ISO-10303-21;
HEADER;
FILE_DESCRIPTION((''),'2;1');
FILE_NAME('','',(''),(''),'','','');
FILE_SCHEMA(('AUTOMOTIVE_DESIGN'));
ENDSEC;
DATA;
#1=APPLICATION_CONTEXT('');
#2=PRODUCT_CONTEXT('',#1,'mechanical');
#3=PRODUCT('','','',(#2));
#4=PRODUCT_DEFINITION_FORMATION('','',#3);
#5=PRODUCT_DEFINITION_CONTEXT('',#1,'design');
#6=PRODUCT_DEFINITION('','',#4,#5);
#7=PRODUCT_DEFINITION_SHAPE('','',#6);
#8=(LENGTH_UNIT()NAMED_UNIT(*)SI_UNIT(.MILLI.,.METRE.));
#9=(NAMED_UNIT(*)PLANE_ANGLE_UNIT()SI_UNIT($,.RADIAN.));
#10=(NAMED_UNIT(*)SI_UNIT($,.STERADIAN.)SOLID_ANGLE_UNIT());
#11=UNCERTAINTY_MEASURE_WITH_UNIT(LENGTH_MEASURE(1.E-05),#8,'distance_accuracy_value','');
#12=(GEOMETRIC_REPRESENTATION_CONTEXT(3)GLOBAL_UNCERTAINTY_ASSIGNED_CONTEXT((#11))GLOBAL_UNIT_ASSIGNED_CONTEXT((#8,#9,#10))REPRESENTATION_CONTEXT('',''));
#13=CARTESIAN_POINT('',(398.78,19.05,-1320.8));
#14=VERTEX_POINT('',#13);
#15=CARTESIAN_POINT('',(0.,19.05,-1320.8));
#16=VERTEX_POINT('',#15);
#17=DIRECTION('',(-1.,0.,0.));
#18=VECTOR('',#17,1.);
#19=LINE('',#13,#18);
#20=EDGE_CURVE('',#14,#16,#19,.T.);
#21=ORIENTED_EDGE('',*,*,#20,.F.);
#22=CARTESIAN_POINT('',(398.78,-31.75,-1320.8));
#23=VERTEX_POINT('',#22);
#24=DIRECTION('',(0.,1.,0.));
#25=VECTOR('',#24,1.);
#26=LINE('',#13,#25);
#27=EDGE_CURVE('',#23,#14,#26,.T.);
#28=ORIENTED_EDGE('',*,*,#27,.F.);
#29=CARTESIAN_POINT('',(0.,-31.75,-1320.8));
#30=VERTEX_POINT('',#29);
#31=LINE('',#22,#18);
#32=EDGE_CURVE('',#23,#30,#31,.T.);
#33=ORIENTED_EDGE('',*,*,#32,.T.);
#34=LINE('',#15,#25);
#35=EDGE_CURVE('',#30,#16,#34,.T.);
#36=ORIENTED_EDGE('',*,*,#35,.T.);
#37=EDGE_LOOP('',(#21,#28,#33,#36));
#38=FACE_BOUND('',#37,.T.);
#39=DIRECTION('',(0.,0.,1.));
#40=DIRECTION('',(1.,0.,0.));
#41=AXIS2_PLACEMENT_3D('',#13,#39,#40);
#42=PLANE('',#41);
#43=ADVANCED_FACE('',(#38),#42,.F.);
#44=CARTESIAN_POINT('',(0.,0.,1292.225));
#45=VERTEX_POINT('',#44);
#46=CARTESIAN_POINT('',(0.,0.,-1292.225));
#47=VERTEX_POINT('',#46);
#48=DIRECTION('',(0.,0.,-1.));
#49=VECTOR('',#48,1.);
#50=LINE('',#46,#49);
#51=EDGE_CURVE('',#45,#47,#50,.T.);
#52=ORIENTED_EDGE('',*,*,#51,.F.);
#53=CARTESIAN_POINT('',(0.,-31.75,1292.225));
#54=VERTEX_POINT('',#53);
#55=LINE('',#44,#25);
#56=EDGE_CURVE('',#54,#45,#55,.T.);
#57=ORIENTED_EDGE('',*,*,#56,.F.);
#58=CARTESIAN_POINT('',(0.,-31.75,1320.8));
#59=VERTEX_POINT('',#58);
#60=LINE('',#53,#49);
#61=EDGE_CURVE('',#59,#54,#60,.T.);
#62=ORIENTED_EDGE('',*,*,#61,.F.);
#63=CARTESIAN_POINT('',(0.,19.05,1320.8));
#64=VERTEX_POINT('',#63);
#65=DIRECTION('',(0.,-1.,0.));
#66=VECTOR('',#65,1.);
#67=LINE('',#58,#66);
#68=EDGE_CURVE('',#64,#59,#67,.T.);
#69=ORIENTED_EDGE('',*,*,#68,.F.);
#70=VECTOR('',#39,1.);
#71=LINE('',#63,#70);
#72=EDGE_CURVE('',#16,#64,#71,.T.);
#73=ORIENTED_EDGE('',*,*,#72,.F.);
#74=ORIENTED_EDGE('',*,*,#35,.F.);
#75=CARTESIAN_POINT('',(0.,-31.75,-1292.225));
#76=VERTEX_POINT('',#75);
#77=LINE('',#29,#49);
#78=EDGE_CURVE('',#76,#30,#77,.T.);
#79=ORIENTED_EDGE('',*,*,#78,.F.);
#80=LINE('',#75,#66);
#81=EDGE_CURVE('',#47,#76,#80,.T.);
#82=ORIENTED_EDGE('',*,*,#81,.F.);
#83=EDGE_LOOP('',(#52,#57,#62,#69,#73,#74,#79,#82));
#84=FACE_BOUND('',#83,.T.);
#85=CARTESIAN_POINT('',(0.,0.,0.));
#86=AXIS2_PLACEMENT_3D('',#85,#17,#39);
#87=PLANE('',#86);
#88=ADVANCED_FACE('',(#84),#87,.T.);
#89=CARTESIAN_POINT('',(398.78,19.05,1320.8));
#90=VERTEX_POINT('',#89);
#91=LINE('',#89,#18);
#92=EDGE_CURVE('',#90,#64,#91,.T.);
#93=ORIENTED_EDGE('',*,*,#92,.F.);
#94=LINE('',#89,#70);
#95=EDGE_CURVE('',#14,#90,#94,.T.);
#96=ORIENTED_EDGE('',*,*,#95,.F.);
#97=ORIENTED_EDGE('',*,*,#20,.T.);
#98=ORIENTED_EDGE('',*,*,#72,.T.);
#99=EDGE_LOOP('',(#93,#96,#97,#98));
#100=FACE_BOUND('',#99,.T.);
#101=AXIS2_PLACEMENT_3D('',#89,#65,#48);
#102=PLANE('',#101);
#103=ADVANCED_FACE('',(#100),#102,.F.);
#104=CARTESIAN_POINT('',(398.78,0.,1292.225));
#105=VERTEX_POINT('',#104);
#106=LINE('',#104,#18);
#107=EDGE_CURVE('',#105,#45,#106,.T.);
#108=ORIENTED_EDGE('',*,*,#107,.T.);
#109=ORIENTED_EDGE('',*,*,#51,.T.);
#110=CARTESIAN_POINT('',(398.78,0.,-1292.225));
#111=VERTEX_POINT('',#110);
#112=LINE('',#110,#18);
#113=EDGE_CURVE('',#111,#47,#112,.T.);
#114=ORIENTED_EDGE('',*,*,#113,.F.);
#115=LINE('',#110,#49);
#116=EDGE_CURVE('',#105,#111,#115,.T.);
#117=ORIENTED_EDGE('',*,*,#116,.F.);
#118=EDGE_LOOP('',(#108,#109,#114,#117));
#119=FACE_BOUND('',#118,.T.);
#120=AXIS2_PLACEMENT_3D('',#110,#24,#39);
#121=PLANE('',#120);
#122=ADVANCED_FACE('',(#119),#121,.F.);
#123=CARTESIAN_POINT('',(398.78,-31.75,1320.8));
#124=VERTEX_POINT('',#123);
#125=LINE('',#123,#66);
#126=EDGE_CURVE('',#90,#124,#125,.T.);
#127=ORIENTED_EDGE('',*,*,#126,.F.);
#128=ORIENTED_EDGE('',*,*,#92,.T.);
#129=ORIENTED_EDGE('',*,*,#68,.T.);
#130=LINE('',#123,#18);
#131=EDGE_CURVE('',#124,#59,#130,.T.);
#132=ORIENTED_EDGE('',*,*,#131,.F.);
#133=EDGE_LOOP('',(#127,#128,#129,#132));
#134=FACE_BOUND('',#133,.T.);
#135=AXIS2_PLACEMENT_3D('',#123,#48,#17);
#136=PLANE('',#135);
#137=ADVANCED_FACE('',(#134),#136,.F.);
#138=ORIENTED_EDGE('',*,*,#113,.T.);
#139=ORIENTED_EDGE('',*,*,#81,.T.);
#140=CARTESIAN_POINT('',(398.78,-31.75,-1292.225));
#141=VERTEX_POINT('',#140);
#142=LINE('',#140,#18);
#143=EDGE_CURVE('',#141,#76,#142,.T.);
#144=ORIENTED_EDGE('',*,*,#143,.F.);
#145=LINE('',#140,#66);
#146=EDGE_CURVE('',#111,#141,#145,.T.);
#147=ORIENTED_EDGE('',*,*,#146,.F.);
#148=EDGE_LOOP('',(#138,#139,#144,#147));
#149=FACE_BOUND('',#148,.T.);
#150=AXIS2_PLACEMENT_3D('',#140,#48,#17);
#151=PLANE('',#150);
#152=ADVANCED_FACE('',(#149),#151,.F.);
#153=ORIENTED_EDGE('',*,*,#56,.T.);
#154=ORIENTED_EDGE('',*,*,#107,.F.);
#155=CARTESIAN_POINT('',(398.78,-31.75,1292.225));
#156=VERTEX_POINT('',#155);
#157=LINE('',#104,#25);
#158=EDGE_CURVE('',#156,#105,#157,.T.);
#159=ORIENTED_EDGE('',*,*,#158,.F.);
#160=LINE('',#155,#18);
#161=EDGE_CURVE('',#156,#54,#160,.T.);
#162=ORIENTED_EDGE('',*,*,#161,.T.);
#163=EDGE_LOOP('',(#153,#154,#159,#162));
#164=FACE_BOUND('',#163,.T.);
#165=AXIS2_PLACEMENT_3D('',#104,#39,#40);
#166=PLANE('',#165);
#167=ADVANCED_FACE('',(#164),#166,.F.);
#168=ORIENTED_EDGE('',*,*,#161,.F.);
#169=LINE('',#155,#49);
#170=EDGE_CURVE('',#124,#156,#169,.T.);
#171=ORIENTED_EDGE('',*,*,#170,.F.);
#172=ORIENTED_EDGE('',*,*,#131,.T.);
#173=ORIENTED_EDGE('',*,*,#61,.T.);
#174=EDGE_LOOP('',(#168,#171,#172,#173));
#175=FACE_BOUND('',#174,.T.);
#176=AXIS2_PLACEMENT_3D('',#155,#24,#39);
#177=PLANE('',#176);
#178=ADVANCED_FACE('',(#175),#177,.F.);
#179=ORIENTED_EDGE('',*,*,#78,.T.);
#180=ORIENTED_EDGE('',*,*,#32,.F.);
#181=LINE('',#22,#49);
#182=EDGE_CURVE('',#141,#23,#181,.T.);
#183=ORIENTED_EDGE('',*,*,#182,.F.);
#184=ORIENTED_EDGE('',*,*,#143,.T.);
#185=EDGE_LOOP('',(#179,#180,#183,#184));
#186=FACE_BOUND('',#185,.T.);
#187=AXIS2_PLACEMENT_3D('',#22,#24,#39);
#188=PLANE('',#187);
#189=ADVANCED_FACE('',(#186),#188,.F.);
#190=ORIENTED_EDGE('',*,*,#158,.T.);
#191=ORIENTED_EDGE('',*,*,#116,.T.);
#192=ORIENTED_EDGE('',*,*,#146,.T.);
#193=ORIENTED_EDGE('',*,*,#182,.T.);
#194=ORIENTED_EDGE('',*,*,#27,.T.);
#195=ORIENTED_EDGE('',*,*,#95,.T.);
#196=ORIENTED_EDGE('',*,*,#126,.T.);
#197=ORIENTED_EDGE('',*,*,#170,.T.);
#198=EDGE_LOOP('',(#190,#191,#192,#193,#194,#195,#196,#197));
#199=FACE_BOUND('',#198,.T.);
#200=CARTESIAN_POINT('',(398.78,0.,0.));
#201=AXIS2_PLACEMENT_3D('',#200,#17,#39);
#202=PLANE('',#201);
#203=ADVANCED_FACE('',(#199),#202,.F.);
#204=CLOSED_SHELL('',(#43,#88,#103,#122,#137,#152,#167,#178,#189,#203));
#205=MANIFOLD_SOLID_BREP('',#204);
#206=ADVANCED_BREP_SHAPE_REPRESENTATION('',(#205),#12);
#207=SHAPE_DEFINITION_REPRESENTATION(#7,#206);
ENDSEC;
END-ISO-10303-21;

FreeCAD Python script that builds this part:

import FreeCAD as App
import Part
import Sketcher
from FreeCAD import Vector
Q = App.Units.Quantity

doc = App.newDocument("Part")
params = doc.addObject("Spreadsheet::Sheet", "Params")
for row, (alias, value) in enumerate([
    ("sketch1_width", "2 in"),
    ("sketch1_height", "104 in"),
    ("sketch1_width2", "1.25 in"),
    ("sketch1_height2", "101.75 in"),
    ("pad1_length", "15.7 in"),
], start=1):
    params.set(f"A{row}", alias)
    params.set(f"B{row}", "=" + value)
    params.setAlias(f"B{row}", alias)

body = doc.addObject("PartDesign::Body", "Body")

sketch1 = body.newObject("Sketcher::SketchObject", "Sketch")
sketch1.AttachmentSupport = (doc.getObject("YZ_Plane"), [""])
sketch1.MapMode = "FlatFace"
sketch1.addGeometry(Part.LineSegment(Vector(-31.75, 1320.8, 0), Vector(-31.75, 1292.225, 0)), False)
sketch1.addGeometry(Part.LineSegment(Vector(-31.75, 1292.225, 0), Vector(0, 1292.225, 0)), False)
sketch1.addGeometry(Part.LineSegment(Vector(0, 1292.225, 0), Vector(0, -1292.225, 0)), False)
sketch1.addGeometry(Part.LineSegment(Vector(0, -1292.225, 0), Vector(-31.75, -1292.225, 0)), False)
sketch1.addGeometry(Part.LineSegment(Vector(-31.75, -1292.225, 0), Vector(-31.75, -1320.8, 0)), False)
sketch1.addGeometry(Part.LineSegment(Vector(-31.75, -1320.8, 0), Vector(19.05, -1320.8, 0)), False)
sketch1.addGeometry(Part.LineSegment(Vector(19.05, -1320.8, 0), Vector(19.05, 1320.8, 0)), False)
sketch1.addGeometry(Part.LineSegment(Vector(19.05, 1320.8, 0), Vector(-31.75, 1320.8, 0)), False)
sketch1.addConstraint(Sketcher.Constraint("Coincident", 0, 2, 1, 1))
sketch1.addConstraint(Sketcher.Constraint("Coincident", 1, 2, 2, 1))
sketch1.addConstraint(Sketcher.Constraint("Coincident", 2, 2, 3, 1))
sketch1.addConstraint(Sketcher.Constraint("Coincident", 3, 2, 4, 1))
sketch1.addConstraint(Sketcher.Constraint("Coincident", 4, 2, 5, 1))
sketch1.addConstraint(Sketcher.Constraint("Coincident", 5, 2, 6, 1))
sketch1.addConstraint(Sketcher.Constraint("Coincident", 6, 2, 7, 1))
sketch1.addConstraint(Sketcher.Constraint("Coincident", 7, 2, 0, 1))
sketch1.addConstraint(Sketcher.Constraint("Vertical", 0))
sketch1.addConstraint(Sketcher.Constraint("Horizontal", 1))
sketch1.addConstraint(Sketcher.Constraint("Vertical", 2))
sketch1.addConstraint(Sketcher.Constraint("Horizontal", 3))
sketch1.addConstraint(Sketcher.Constraint("Vertical", 4))
sketch1.addConstraint(Sketcher.Constraint("Horizontal", 5))
sketch1.addConstraint(Sketcher.Constraint("Vertical", 6))
sketch1.addConstraint(Sketcher.Constraint("Horizontal", 7))
sketch1.addConstraint(Sketcher.Constraint("Symmetric", 1, 2, 2, 2, -1, 1))
sketch1.addConstraint(Sketcher.Constraint("Symmetric", 4, 2, 7, 2, -1))
sketch1.addConstraint(Sketcher.Constraint("DistanceX", 5, 1, 5, 2, Q("2 in")))
sketch1.addConstraint(Sketcher.Constraint("DistanceY", 6, 1, 6, 2, Q("104 in")))
sketch1.addConstraint(Sketcher.Constraint("DistanceX", 1, 1, 1, 2, Q("1.25 in")))
sketch1.addConstraint(Sketcher.Constraint("DistanceY", 2, 2, 2, 1, Q("101.75 in")))
sketch1.setExpression("Constraints[18]", "Params.sketch1_width")
sketch1.setExpression("Constraints[19]", "Params.sketch1_height")
sketch1.setExpression("Constraints[20]", "Params.sketch1_width2")
sketch1.setExpression("Constraints[21]", "Params.sketch1_height2")
pad1 = body.newObject("PartDesign::Pad", "Pad")
pad1.Profile = sketch1
pad1.setExpression("Length", "Params.pad1_length")

doc.recompute()
